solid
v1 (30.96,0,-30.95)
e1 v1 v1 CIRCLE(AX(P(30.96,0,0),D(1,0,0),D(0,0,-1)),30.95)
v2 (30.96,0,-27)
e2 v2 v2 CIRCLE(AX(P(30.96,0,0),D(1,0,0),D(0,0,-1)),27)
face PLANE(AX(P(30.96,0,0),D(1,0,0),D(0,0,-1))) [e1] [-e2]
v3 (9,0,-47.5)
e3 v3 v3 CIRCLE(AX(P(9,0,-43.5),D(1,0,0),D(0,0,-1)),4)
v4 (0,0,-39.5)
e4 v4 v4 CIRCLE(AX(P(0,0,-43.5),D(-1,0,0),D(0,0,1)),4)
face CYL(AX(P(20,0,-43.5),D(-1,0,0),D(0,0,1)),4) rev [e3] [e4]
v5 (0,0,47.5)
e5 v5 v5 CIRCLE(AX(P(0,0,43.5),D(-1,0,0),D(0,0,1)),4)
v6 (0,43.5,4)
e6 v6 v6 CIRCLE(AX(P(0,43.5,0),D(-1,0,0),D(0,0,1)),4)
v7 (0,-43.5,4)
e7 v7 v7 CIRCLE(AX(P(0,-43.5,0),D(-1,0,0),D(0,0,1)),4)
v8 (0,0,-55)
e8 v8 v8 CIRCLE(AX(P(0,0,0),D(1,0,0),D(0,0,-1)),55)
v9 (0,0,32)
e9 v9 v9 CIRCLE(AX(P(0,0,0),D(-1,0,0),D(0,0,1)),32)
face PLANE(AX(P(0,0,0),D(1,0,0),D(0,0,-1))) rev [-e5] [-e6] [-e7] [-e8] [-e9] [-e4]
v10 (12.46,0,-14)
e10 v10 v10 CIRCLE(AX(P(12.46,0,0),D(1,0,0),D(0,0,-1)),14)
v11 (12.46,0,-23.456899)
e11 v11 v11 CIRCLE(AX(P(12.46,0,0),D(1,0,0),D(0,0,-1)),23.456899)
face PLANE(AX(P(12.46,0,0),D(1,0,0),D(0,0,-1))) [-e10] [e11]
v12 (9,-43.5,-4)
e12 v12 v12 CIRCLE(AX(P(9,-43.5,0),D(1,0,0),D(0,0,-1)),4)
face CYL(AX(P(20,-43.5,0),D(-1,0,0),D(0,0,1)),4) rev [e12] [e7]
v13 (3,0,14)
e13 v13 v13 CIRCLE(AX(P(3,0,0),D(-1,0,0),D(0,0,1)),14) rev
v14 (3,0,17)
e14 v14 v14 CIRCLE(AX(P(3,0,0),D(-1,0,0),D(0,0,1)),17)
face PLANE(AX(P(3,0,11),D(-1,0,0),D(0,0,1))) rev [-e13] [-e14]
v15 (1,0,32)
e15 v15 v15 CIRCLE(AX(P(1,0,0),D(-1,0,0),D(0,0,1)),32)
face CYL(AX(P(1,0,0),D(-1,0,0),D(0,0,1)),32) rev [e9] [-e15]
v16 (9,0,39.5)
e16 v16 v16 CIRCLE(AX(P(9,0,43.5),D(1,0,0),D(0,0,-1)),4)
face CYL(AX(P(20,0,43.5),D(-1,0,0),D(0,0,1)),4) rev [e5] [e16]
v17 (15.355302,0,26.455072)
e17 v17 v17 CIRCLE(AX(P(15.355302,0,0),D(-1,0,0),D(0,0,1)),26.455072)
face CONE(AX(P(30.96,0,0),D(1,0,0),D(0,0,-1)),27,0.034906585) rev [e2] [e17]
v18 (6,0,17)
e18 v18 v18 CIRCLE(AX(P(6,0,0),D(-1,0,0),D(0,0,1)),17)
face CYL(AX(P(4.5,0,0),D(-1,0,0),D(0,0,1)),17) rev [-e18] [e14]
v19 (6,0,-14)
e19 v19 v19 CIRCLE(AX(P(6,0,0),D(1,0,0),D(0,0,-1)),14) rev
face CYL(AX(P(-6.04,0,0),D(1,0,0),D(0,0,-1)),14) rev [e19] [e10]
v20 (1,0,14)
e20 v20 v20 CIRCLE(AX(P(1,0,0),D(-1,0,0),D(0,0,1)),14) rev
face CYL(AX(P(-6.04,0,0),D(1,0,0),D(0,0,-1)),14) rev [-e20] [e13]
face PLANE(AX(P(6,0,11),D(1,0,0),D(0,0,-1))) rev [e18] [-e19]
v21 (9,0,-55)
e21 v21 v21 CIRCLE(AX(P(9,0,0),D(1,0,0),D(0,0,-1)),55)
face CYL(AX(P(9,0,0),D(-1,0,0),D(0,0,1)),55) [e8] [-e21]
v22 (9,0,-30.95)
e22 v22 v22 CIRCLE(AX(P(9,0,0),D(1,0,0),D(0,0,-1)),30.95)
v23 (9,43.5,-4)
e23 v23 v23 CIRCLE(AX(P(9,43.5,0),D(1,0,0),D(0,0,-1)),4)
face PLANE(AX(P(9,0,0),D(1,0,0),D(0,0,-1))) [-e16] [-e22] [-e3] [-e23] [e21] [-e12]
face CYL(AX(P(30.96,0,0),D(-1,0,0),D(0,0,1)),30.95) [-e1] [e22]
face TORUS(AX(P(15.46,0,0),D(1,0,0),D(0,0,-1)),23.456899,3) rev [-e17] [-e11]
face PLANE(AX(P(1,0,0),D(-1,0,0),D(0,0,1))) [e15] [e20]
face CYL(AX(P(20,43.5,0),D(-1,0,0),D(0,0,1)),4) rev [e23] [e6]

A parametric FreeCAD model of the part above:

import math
import FreeCAD as App
import Part
import Sketcher
from FreeCAD import Vector


def edges_at(feature, points):
    """Names of the edges that pass closest to the given points."""
    edges = feature.Shape.Edges
    near = lambda p: min(range(len(edges)), key=lambda i: edges[i].distToShape(Part.Vertex(*p))[0])
    return sorted({f"Edge{near(p) + 1}" for p in points})

doc = App.newDocument("Part")
params = doc.addObject("Spreadsheet::Sheet", "Params")
for row, (alias, value) in enumerate([
    ("sketch1_diameter", "110 mm"),
    ("pad1_length", "9 mm"),
    ("sketch2_diameter", "61.9 mm"),
    ("pad2_length", "21.96 mm"),
    ("sketch3_diameter", "54 mm"),
    ("pocket1_length", "18.5 mm"),
    ("pocket1_taper", "-2 deg"),
    ("fillet_radius", "3 mm"),
    ("sketch4_diameter", "28 mm"),
    ("pocket2_length", "18.5 mm"),
    ("sketch5_width", "3 mm"),
    ("sketch5_height", "6 mm"),
    ("sketch6_diameter", "28 mm"),
    ("sketch7_diameter", "64 mm"),
    ("pocket3_length", "1 mm"),
    ("sketch8_diameter", "8 mm"),
    ("pocket4_length", "20 mm"),
], start=1):
    params.set(f"A{row}", alias)
    params.set(f"B{row}", "=" + value)
    params.setAlias(f"B{row}", alias)

body = doc.addObject("PartDesign::Body", "Body")

sketch1 = body.newObject("Sketcher::SketchObject", "Sketch")
sketch1.AttachmentSupport = (doc.getObject("YZ_Plane"), [""])
sketch1.MapMode = "FlatFace"
sketch1.addGeometry(Part.Circle(Vector(0, 0, 0), Vector(0, 0, 1), 55), False)
sketch1.addConstraint([
    Sketcher.Constraint("Coincident", 0, 3, -1, 1),
    Sketcher.Constraint("Diameter", 0, 110.0),
])
sketch1.setExpression("Constraints[1]", "Params.sketch1_diameter")
pad1 = body.newObject("PartDesign::Pad", "Pad")
pad1.Profile = sketch1
pad1.setExpression("Length", "Params.pad1_length")

sketch2 = body.newObject("Sketcher::SketchObject", "Sketch001")
sketch2.AttachmentSupport = (doc.getObject("YZ_Plane"), [""])
sketch2.MapMode = "FlatFace"
sketch2.AttachmentOffset = App.Placement(Vector(0, 0, 9), App.Rotation())
sketch2.addGeometry(Part.Circle(Vector(0, 0, 0), Vector(0, 0, 1), 30.95), False)
sketch2.addConstraint([
    Sketcher.Constraint("Coincident", 0, 3, -1, 1),
    Sketcher.Constraint("Diameter", 0, 61.9),
])
sketch2.setExpression("Constraints[1]", "Params.sketch2_diameter")
pad2 = body.newObject("PartDesign::Pad", "Pad001")
pad2.Profile = sketch2
pad2.setExpression("Length", "Params.pad2_length")

sketch3 = body.newObject("Sketcher::SketchObject", "Sketch002")
sketch3.AttachmentSupport = (doc.getObject("YZ_Plane"), [""])
sketch3.MapMode = "FlatFace"
sketch3.AttachmentOffset = App.Placement(Vector(0, 0, 30.96), App.Rotation())
sketch3.addGeometry(Part.Circle(Vector(0, 0, 0), Vector(0, 0, 1), 27), False)
sketch3.addConstraint([
    Sketcher.Constraint("Coincident", 0, 3, -1, 1),
    Sketcher.Constraint("Diameter", 0, 54.0),
])
sketch3.setExpression("Constraints[1]", "Params.sketch3_diameter")
pocket1 = body.newObject("PartDesign::Pocket", "Pocket")
pocket1.Profile = sketch3
pocket1.setExpression("Length", "Params.pocket1_length")
pocket1.setExpression("TaperAngle", "Params.pocket1_taper")
doc.recompute()

fillet = body.newObject("PartDesign::Fillet", "Fillet")
fillet.Base = (pocket1, edges_at(pocket1, [(12.46, 0, 26.354)]))
fillet.setExpression("Radius", "Params.fillet_radius")

sketch4 = body.newObject("Sketcher::SketchObject", "Sketch003")
sketch4.AttachmentSupport = (doc.getObject("YZ_Plane"), [""])
sketch4.MapMode = "FlatFace"
sketch4.AttachmentOffset = App.Placement(Vector(0, 0, 12.46), App.Rotation())
sketch4.addGeometry(Part.Circle(Vector(0, 0, 0), Vector(0, 0, 1), 14), False)
sketch4.addConstraint([
    Sketcher.Constraint("Coincident", 0, 3, -1, 1),
    Sketcher.Constraint("Diameter", 0, 28.0),
])
sketch4.setExpression("Constraints[1]", "Params.sketch4_diameter")
pocket2 = body.newObject("PartDesign::Pocket", "Pocket001")
pocket2.Profile = sketch4
pocket2.setExpression("Length", "Params.pocket2_length")

sketch5 = body.newObject("Sketcher::SketchObject", "Sketch004")
sketch5.AttachmentSupport = (doc.getObject("XZ_Plane"), [""])
sketch5.MapMode = "FlatFace"
sketch5.addGeometry([
    Part.LineSegment(Vector(3, 11, 0), Vector(3, 17, 0)),
    Part.LineSegment(Vector(3, 17, 0), Vector(6, 17, 0)),
    Part.LineSegment(Vector(6, 17, 0), Vector(6, 11, 0)),
    Part.LineSegment(Vector(6, 11, 0), Vector(3, 11, 0)),
], False)
sketch5.addConstraint([
    Sketcher.Constraint("Coincident", 0, 2, 1, 1),
    Sketcher.Constraint("Coincident", 1, 2, 2, 1),
    Sketcher.Constraint("Coincident", 2, 2, 3, 1),
    Sketcher.Constraint("Coincident", 3, 2, 0, 1),
    Sketcher.Constraint("Vertical", 0),
    Sketcher.Constraint("Horizontal", 1),
    Sketcher.Constraint("Vertical", 2),
    Sketcher.Constraint("Horizontal", 3),
    Sketcher.Constraint("DistanceX", 1, 1, 1, 2, 3.0),
    Sketcher.Constraint("DistanceY", 0, 1, 0, 2, 6.0),
    Sketcher.Constraint("DistanceX", -1, 1, 0, 2, 3.0),
    Sketcher.Constraint("DistanceY", -1, 1, 0, 2, 17.0),
])
sketch5.setExpression("Constraints[8]", "Params.sketch5_width")
sketch5.setExpression("Constraints[9]", "Params.sketch5_height")

sketch6 = body.newObject("Sketcher::SketchObject", "Sketch005")
sketch6.AttachmentSupport = (doc.getObject("YZ_Plane"), [""])
sketch6.MapMode = "FlatFace"
sketch6.AttachmentOffset = App.Placement(Vector(0, 0, 4.5), App.Rotation())
sketch6.addGeometry(Part.Circle(Vector(0, 0, 0), Vector(0, 0, 1), 14), False)
sketch6.addConstraint([
    Sketcher.Constraint("Coincident", 0, 3, -1, 1),
    Sketcher.Constraint("Diameter", 0, 28.0),
])
sketch6.setExpression("Constraints[1]", "Params.sketch6_diameter")
doc.recompute()

subtractivepipe = body.newObject("PartDesign::SubtractivePipe", "SubtractivePipe")
subtractivepipe.Profile = sketch5
subtractivepipe.Spine = (sketch6, ["Edge1"])

sketch7 = body.newObject("Sketcher::SketchObject", "Sketch006")
sketch7.AttachmentSupport = (doc.getObject("YZ_Plane"), [""])
sketch7.MapMode = "FlatFace"
sketch7.addGeometry(Part.Circle(Vector(0, 0, 0), Vector(0, 0, 1), 32), False)
sketch7.addConstraint([
    Sketcher.Constraint("Coincident", 0, 3, -1, 1),
    Sketcher.Constraint("Diameter", 0, 64.0),
])
sketch7.setExpression("Constraints[1]", "Params.sketch7_diameter")
pocket3 = body.newObject("PartDesign::Pocket", "Pocket002")
pocket3.Profile = sketch7
pocket3.setExpression("Length", "Params.pocket3_length")
pocket3.Reversed = True

sketch8 = body.newObject("Sketcher::SketchObject", "Sketch007")
sketch8.AttachmentSupport = (doc.getObject("YZ_Plane"), [""])
sketch8.MapMode = "FlatFace"
sketch8.addGeometry([
    Part.ArcOfCircle(Part.Circle(Vector(43.5, 0, 0), Vector(0, 0, 1), 4), math.radians(180), math.radians(360)),
    Part.ArcOfCircle(Part.Circle(Vector(43.5, 0, 0), Vector(0, 0, 1), 4), math.radians(90), math.radians(180)),
    Part.ArcOfCircle(Part.Circle(Vector(43.5, 0, 0), Vector(0, 0, 1), 4), math.radians(0), math.radians(90)),
    Part.Circle(Vector(0, 43.5, 0), Vector(0, 0, 1), 4),
    Part.ArcOfCircle(Part.Circle(Vector(-43.5, 0, 0), Vector(0, 0, 1), 4), math.radians(180), math.radians(360)),
    Part.ArcOfCircle(Part.Circle(Vector(-43.5, 0, 0), Vector(0, 0, 1), 4), math.radians(90), math.radians(180)),
    Part.ArcOfCircle(Part.Circle(Vector(-43.5, 0, 0), Vector(0, 0, 1), 4), math.radians(0), math.radians(90)),
    Part.Circle(Vector(0, -43.5, 0), Vector(0, 0, 1), 4),
], False)
sketch8.addConstraint([
    Sketcher.Constraint("Tangent", 0, 1, 1, 2),
    Sketcher.Constraint("Tangent", 1, 1, 2, 2),
    Sketcher.Constraint("Tangent", 2, 1, 0, 2),
    Sketcher.Constraint("Tangent", 4, 1, 5, 2),
    Sketcher.Constraint("Tangent", 5, 1, 6, 2),
    Sketcher.Constraint("Tangent", 6, 1, 4, 2),
    Sketcher.Constraint("Equal", 2, 3),
    Sketcher.Constraint("Equal", 3, 4),
    Sketcher.Constraint("Equal", 6, 7),
    Sketcher.Constraint("Symmetric", 0, 3, 4, 3, -1, 1),
    Sketcher.Constraint("Symmetric", 3, 3, 7, 3, -1, 1),
    Sketcher.Constraint("Symmetric", 1, 1, 5, 1, -2),
    Sketcher.Constraint("PointOnObject", 3, 3, -2),
    Sketcher.Constraint("PointOnObject", 0, 1, -1),
    Sketcher.Constraint("PointOnObject", 2, 1, -1),
    Sketcher.Constraint("PointOnObject", 4, 1, -1),
    Sketcher.Constraint("PointOnObject", 6, 1, -1),
    Sketcher.Constraint("Vertical", 2, 3, 1, 1),
    Sketcher.Constraint("Diameter", 3, 8.0),
    Sketcher.Constraint("DistanceX", 4, 3, 1, 3, 87.0),
    Sketcher.Constraint("DistanceY", -1, 1, 3, 3, 43.5),
])
sketch8.setExpression("Constraints[18]", "Params.sketch8_diameter")
pocket4 = body.newObject("PartDesign::Pocket", "Pocket003")
pocket4.Profile = sketch8
pocket4.setExpression("Length", "Params.pocket4_length")
pocket4.Reversed = True

doc.recompute()
